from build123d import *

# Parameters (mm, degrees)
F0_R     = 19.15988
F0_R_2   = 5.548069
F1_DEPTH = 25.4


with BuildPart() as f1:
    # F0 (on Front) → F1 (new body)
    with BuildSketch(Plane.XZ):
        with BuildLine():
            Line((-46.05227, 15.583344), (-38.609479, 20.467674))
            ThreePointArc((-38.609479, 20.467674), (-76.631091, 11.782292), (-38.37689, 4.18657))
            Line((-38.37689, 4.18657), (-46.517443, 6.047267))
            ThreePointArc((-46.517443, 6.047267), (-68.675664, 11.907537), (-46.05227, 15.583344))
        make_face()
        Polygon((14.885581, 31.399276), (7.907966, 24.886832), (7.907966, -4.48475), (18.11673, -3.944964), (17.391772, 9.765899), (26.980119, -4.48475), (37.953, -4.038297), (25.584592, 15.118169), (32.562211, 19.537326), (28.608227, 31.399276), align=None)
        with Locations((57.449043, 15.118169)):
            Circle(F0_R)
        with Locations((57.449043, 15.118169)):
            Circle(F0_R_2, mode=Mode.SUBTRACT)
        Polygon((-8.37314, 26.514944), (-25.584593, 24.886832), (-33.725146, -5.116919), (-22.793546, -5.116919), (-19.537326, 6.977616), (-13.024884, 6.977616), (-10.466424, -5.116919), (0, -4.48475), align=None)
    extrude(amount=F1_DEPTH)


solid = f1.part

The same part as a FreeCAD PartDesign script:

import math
import FreeCAD as App
import Part
import Sketcher
from FreeCAD import Vector
Q = App.Units.Quantity


def add_polygon(sketch, points):
    """Adds a closed chain of lines whose ends are joined by coincident constraints."""
    first, n = sketch.GeometryCount, len(points)
    for a, b in zip(points, points[1:] + points[:1]):
        sketch.addGeometry(Part.LineSegment(App.Vector(*a, 0), App.Vector(*b, 0)), False)
    for i in range(n):
        sketch.addConstraint(Sketcher.Constraint("Coincident", first + i, 2, first + (i + 1) % n, 1))

doc = App.newDocument("Part")
params = doc.addObject("Spreadsheet::Sheet", "Params")
for row, (alias, value) in enumerate([
    ("pad1_length", "1 in"),
], start=1):
    params.set(f"A{row}", alias)
    params.set(f"B{row}", "=" + value)
    params.setAlias(f"B{row}", alias)

body = doc.addObject("PartDesign::Body", "Body")
body.AllowCompound = True

# Sketch on XZ plane
sketch1 = body.newObject("Sketcher::SketchObject", "Sketch")
sketch1.AttachmentSupport = (doc.getObject("XZ_Plane"), [""])
sketch1.MapMode = "FlatFace"
sketch1.addGeometry(Part.LineSegment(Vector(-46.05227, 15.583344, 0), Vector(-38.609479, 20.467674, 0)), False)  # 0
sketch1.addGeometry(Part.ArcOfCircle(Part.Circle(Vector(-56.693336, 12.067118, 0), Vector(0, 0, 1), 19.93979), math.radians(24.916444), math.radians(336.720479)), False)  # 1
sketch1.addGeometry(Part.LineSegment(Vector(-38.37689, 4.18657, 0), Vector(-46.517443, 6.047267, 0)), False)  # 2
sketch1.addGeometry(Part.ArcOfCircle(Part.Circle(Vector(-56.972592, 11.336657, 0), Vector(0, 0, 1), 11.716987), math.radians(21.250028), math.radians(333.164585)), False)  # 3
add_polygon(sketch1, [(14.885581, 31.399276), (7.907966, 24.886832), (7.907966, -4.48475), (18.11673, -3.944964), (17.391772, 9.765899), (26.980119, -4.48475), (37.953, -4.038297), (25.584592, 15.118169), (32.562211, 19.537326), (28.608227, 31.399276)])  # lines 4-13
sketch1.addGeometry(Part.Circle(Vector(57.449043, 15.118169, 0), Vector(0, 0, 1), 19.15988), False)  # 14
sketch1.addGeometry(Part.Circle(Vector(57.449043, 15.118169, 0), Vector(0, 0, 1), 5.548069), False)  # 15
add_polygon(sketch1, [(-8.37314, 26.514944), (-25.584593, 24.886832), (-33.725146, -5.116919), (-22.793546, -5.116919), (-19.537326, 6.977616), (-13.024884, 6.977616), (-10.466424, -5.116919), (0, -4.48475)])  # lines 16-23
sketch1.addConstraint([
    Sketcher.Constraint("Coincident", 0, 2, 1, 1),
    Sketcher.Constraint("Coincident", 1, 2, 2, 1),
    Sketcher.Constraint("Coincident", 2, 2, 3, 2),
    Sketcher.Constraint("Coincident", 3, 1, 0, 1),
    Sketcher.Constraint("Vertical", 5),
    Sketcher.Constraint("Horizontal", 13),
    Sketcher.Constraint("Horizontal", 18),
    Sketcher.Constraint("Horizontal", 20),
    Sketcher.Constraint("Coincident", 15, 3, 14, 3),
    Sketcher.Constraint("PointOnObject", 22, 2, -2),
    Sketcher.Constraint("Perpendicular", 6, 7),
    Sketcher.Constraint("Horizontal", 5, 2, 8, 2),
    Sketcher.Constraint("Horizontal", 15, 3, 10, 2),
    Sketcher.Constraint("Horizontal", 4, 2, 16, 2),
    Sketcher.Constraint("Horizontal", 18, 2, 21, 2),
    Sketcher.Constraint("Horizontal", 8, 2, 22, 2),
    Sketcher.Constraint("Diameter", 14, 38.31976),
    Sketcher.Constraint("Radius", 1, 19.93979),
    Sketcher.Constraint("Distance", 21, Q("0.4867 in")),
    Sketcher.Constraint("Diameter", 15, 11.096138),
    Sketcher.Constraint("DistanceX", 18, 1, 18, 2, 10.9316),
    Sketcher.Constraint("Radius", 3, 11.716987),
    Sketcher.Constraint("Distance", 22, 10.485498),
    Sketcher.Constraint("DistanceY", 5, 2, 5, 1, 29.371582),
    Sketcher.Constraint("DistanceY", -1, 1, 7, 2, 9.765899),
    Sketcher.Constraint("DistanceX", -1, 1, 9, 2, 37.953),
    Sketcher.Constraint("DistanceY", 1, 2, 14, 3, 10.931599),
    Sketcher.Constraint("Distance", 0, 8.902349),
    Sketcher.Constraint("Distance", 4, 9.544582),
    Sketcher.Constraint("Distance", 8, 17.17607),
    Sketcher.Constraint("Distance", 9, 10.98196),
    Sketcher.Constraint("Distance", 10, 22.802362),
    Sketcher.Constraint("Distance", 17, 31.088481),
    Sketcher.Constraint("DistanceX", 13, 2, 13, 1, 13.722646),
    Sketcher.Constraint("DistanceX", 20, 1, 20, 2, 6.512442),
    Sketcher.Constraint("DistanceY", -1, 1, 14, 3, 15.118169),
    Sketcher.Constraint("DistanceX", 0, 2, -1, 1, 38.609479),
    Sketcher.Constraint("DistanceX", 1, 2, -1, 1, 38.37689),
    Sketcher.Constraint("DistanceX", 3, 1, -1, 1, 46.05227),
    Sketcher.Constraint("DistanceY", -1, 1, 4, 2, 24.886832),
    Sketcher.Constraint("DistanceX", -1, 1, 6, 2, 18.11673),
    Sketcher.Constraint("DistanceX", -1, 1, 7, 2, 17.391772),
    Sketcher.Constraint("DistanceX", -1, 1, 11, 2, 32.562211),
    Sketcher.Constraint("DistanceX", -1, 1, 13, 2, 14.885581),
    Sketcher.Constraint("DistanceY", 17, 2, -1, 1, 5.116919),
    Sketcher.Constraint("DistanceX", 23, 2, -1, 1, 8.37314),
    Sketcher.Constraint("DistanceY", 3, 3, 1, 3, 0.730461),
    Sketcher.Constraint("DistanceX", 1, 3, 14, 3, 114.142379),
    Sketcher.Constraint("DistanceY", 1, 3, 14, 3, 3.051051),
    Sketcher.Constraint("DistanceX", 3, 3, 2, 2, 10.455149),
    Sketcher.Constraint("DistanceY", 11, 2, 12, 2, 11.86195),
    Sketcher.Constraint("DistanceX", 4, 2, 12, 2, 20.700261),
    Sketcher.Constraint("DistanceX", 2, 2, 16, 2, 20.93285),
    Sketcher.Constraint("DistanceX", 18, 2, 19, 2, 3.25622),
    Sketcher.Constraint("Distance", 16, 17.288287),
])
pad1 = body.newObject("PartDesign::Pad", "Pad")
pad1.Profile = sketch1
pad1.setExpression("Length", "Params.pad1_length")

doc.recompute()
